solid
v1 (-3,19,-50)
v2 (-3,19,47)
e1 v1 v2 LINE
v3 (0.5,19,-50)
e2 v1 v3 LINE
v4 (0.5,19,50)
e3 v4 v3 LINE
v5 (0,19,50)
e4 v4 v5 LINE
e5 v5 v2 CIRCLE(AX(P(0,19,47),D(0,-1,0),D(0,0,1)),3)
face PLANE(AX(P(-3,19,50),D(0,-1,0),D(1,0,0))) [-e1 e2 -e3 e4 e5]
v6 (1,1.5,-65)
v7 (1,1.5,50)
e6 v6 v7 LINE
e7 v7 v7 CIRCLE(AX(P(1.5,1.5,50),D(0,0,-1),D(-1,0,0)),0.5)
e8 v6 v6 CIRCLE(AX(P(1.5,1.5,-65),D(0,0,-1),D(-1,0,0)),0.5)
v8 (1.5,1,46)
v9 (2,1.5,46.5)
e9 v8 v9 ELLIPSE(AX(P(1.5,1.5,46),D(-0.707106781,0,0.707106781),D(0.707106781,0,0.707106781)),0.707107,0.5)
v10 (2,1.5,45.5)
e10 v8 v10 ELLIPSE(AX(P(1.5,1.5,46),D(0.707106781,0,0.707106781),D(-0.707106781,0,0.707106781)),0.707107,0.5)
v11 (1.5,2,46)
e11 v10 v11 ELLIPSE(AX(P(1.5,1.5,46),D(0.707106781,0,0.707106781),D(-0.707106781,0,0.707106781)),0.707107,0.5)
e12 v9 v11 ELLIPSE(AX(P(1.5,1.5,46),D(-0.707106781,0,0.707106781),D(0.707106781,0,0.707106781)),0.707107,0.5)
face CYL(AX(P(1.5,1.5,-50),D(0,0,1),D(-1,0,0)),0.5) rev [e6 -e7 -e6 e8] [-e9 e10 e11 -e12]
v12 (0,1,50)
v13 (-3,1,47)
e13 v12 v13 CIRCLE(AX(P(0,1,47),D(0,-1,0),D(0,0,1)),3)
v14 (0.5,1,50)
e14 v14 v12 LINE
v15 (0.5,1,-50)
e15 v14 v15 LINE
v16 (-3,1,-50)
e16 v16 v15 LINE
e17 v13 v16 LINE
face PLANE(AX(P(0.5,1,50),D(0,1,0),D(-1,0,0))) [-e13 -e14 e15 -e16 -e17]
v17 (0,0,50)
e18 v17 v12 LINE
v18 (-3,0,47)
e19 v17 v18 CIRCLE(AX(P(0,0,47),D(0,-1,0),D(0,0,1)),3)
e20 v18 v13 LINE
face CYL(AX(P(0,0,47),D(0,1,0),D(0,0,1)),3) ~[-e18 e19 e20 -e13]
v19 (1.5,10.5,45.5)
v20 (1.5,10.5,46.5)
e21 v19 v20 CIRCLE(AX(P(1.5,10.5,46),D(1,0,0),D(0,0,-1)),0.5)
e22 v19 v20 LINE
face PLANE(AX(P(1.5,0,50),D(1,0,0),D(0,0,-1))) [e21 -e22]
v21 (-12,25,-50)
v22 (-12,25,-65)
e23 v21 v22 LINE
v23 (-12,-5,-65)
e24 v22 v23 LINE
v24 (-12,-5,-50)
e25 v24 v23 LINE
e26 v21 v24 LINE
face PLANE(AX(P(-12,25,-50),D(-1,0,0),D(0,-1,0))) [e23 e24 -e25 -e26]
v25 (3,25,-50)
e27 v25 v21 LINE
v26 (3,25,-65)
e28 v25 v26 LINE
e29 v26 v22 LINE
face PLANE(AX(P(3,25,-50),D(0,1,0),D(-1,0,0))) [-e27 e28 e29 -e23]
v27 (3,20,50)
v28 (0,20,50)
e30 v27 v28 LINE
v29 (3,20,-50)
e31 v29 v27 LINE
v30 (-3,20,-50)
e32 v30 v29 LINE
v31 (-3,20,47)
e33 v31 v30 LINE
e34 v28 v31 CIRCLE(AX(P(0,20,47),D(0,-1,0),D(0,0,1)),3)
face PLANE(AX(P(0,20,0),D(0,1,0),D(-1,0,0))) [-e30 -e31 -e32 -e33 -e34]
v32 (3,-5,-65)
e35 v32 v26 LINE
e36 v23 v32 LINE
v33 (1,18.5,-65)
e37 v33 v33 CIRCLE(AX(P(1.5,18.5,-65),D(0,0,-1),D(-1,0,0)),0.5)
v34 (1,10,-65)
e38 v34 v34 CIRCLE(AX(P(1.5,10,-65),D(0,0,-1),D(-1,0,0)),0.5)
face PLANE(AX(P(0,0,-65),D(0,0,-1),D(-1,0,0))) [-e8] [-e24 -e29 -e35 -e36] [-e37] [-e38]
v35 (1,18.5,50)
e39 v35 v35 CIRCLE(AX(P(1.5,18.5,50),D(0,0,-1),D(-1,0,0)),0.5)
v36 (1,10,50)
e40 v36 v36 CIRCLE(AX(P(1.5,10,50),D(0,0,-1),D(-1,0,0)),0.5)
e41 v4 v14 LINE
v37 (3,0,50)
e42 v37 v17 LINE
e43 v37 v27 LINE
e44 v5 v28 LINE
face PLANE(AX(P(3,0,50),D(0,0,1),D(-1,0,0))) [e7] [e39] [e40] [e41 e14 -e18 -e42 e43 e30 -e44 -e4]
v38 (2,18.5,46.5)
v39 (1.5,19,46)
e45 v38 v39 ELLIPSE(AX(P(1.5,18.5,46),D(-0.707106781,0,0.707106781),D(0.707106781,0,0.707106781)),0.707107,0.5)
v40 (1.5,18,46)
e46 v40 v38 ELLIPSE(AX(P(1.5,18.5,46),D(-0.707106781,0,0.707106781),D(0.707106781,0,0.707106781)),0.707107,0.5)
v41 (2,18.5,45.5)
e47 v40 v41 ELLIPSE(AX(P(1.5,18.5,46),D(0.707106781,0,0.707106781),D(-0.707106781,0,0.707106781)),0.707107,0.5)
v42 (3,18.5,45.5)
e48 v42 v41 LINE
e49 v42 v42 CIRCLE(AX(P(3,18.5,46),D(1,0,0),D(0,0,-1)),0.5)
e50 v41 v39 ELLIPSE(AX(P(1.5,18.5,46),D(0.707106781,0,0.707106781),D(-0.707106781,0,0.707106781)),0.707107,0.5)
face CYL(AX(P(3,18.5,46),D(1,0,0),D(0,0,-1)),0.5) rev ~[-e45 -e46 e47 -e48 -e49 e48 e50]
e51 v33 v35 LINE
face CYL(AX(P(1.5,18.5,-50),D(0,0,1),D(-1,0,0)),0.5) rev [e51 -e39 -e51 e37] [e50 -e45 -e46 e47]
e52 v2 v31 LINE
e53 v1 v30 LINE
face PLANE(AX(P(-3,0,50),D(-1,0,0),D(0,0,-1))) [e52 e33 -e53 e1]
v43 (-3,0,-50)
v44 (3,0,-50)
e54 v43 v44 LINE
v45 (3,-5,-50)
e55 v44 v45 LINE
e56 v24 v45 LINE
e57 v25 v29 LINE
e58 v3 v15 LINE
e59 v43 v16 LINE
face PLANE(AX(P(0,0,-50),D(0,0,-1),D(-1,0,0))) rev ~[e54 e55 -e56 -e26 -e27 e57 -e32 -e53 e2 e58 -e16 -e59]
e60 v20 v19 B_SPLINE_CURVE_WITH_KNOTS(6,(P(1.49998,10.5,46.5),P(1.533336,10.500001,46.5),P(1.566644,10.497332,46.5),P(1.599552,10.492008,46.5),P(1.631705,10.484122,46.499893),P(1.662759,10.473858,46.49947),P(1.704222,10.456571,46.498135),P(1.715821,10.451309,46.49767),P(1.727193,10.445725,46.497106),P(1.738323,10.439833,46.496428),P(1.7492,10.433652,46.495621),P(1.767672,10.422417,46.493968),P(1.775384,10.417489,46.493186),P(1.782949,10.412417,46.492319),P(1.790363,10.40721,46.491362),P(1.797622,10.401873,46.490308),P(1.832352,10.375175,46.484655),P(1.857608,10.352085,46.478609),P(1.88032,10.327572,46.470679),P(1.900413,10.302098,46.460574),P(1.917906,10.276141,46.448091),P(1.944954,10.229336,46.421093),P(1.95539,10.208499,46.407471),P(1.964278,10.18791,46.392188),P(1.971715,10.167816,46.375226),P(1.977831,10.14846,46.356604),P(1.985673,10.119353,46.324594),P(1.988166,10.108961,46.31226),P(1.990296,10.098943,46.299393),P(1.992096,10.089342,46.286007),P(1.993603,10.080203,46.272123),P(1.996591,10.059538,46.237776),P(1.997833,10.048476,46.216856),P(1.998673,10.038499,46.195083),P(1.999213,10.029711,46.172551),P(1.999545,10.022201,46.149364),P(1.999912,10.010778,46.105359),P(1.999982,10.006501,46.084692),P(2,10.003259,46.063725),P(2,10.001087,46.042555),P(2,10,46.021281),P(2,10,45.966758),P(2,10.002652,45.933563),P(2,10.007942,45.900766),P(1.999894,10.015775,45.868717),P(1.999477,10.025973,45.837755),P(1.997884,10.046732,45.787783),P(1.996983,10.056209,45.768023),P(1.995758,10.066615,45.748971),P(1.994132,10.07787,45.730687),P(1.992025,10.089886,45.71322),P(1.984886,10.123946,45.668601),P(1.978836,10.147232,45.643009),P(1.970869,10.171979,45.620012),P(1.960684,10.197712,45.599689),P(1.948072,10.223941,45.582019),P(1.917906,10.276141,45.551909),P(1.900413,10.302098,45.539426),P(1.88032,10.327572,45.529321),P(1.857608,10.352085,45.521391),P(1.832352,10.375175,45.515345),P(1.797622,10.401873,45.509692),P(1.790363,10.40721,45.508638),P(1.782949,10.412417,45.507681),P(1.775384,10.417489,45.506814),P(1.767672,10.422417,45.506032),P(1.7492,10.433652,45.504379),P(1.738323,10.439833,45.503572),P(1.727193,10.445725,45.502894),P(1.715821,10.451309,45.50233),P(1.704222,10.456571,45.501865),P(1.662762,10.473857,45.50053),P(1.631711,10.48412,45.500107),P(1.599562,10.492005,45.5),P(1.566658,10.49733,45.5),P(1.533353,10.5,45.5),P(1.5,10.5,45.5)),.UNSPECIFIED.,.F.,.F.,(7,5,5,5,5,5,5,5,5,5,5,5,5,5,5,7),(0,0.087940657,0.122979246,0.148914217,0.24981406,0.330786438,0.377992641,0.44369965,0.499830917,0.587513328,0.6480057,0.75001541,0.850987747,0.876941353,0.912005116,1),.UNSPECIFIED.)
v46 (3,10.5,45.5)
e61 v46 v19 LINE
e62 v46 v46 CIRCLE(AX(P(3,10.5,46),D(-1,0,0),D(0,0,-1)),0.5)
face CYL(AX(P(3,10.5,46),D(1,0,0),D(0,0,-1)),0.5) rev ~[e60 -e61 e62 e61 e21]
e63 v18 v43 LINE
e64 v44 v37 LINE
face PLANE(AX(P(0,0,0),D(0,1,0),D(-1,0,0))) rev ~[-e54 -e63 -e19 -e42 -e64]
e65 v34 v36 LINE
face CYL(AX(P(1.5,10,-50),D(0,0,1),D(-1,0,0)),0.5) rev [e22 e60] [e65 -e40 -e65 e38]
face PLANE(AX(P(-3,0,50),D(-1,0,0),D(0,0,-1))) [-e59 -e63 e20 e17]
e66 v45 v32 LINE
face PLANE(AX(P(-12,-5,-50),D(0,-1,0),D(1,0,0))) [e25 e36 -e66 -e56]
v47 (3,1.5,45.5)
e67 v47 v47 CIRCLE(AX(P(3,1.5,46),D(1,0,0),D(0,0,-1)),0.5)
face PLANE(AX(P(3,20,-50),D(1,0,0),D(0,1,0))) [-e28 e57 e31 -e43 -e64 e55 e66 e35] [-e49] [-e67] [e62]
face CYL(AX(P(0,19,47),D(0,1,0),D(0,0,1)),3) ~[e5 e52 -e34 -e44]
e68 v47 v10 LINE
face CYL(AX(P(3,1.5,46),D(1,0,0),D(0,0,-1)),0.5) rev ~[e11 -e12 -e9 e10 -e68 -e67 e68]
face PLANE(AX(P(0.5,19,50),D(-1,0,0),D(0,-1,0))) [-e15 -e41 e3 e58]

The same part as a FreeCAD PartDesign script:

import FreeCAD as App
import Part
import Sketcher
from FreeCAD import Vector
Q = App.Units.Quantity


def edges_at(feature, points):
    """Names of the edges that pass closest to the given points."""
    edges = feature.Shape.Edges
    near = lambda p: min(range(len(edges)), key=lambda i: edges[i].distToShape(Part.Vertex(*p))[0])
    return sorted({f"Edge{near(p) + 1}" for p in points})


def add_polygon(sketch, points):
    """Adds a closed chain of lines whose ends are joined by coincident constraints."""
    first, n = sketch.GeometryCount, len(points)
    for a, b in zip(points, points[1:] + points[:1]):
        sketch.addGeometry(Part.LineSegment(App.Vector(*a, 0), App.Vector(*b, 0)), False)
    for i in range(n):
        sketch.addConstraint(Sketcher.Constraint("Coincident", first + i, 2, first + (i + 1) % n, 1))

doc = App.newDocument("Part")
body = doc.addObject("PartDesign::Body", "Body")

# Sketch on XZ plane
sketch1 = doc.addObject("Sketcher::SketchObject", "Sketch")
body.addObject(sketch1)
sketch1.AttachmentSupport = (doc.XZ_Plane, [""])
sketch1.MapMode = "FlatFace"
add_polygon(sketch1, [(-3, 50), (3, 50), (3, -50), (-3, -50)])  # lines 0-3
sketch1.addConstraint([
    Sketcher.Constraint("Horizontal", 0),
    Sketcher.Constraint("Vertical", 1),
    Sketcher.Constraint("Horizontal", 2),
    Sketcher.Constraint("Vertical", 3),
    Sketcher.Constraint("Symmetric", 0, 2, 2, 2, -1, 1),
    Sketcher.Constraint("DistanceX", 0, 1, 0, 2, Q("6 mm")),
    Sketcher.Constraint("DistanceY", 1, 2, 1, 1, Q("100 mm")),
])
pad1 = doc.addObject("PartDesign::Pad", "Pad")
body.addObject(pad1)
pad1.Profile = sketch1
pad1.Length = 20
pad1.Reversed = True

# Sketch on XY plane
sketch2 = doc.addObject("Sketcher::SketchObject", "Sketch001")
body.addObject(sketch2)
sketch2.AttachmentSupport = (doc.XY_Plane, [""])
sketch2.MapMode = "FlatFace"
sketch2.AttachmentOffset = App.Placement(Vector(0, 0, -50), App.Rotation())
add_polygon(sketch2, [(-12, 25), (3, 25), (3, -5), (-12, -5)])  # lines 0-3
sketch2.addConstraint([
    Sketcher.Constraint("Horizontal", 0),
    Sketcher.Constraint("Vertical", 1),
    Sketcher.Constraint("Horizontal", 2),
    Sketcher.Constraint("Vertical", 3),
    Sketcher.Constraint("DistanceX", 0, 1, 0, 2, Q("15 mm")),
    Sketcher.Constraint("DistanceY", 1, 2, 1, 1, Q("30 mm")),
    Sketcher.Constraint("DistanceY", 1, 2, -1, 1, Q("5 mm")),
    Sketcher.Constraint("DistanceX", -1, 1, 0, 2, Q("3 mm")),
])
pad2 = doc.addObject("PartDesign::Pad", "Pad001")
body.addObject(pad2)
pad2.Profile = sketch2
pad2.Length = 15
pad2.Reversed = True

# Sketch on XY plane
sketch3 = doc.addObject("Sketcher::SketchObject", "Sketch002")
body.addObject(sketch3)
sketch3.AttachmentSupport = (doc.XY_Plane, [""])
sketch3.MapMode = "FlatFace"
sketch3.AttachmentOffset = App.Placement(Vector(0, 0, -50), App.Rotation())
sketch3.addGeometry([
    Part.Circle(Vector(1.5, 18.5, 0), Vector(0, 0, 1), 0.5),
    Part.Circle(Vector(1.5, 10, 0), Vector(0, 0, 1), 0.5),
    Part.Circle(Vector(1.5, 1.5, 0), Vector(0, 0, 1), 0.5),
], False)
sketch3.addConstraint([
    Sketcher.Constraint("Equal", 0, 1),
    Sketcher.Constraint("Equal", 1, 2),
    Sketcher.Constraint("Vertical", 0, 3, 1, 3),
    Sketcher.Constraint("Vertical", 1, 3, 2, 3),
    Sketcher.Constraint("Diameter", 0, Q("1 mm")),
    Sketcher.Constraint("DistanceY", -1, 1, 1, 3, Q("10 mm")),
    Sketcher.Constraint("DistanceX", -1, 1, 0, 3, Q("1.5 mm")),
    Sketcher.Constraint("DistanceY", -1, 1, 2, 3, Q("1.5 mm")),
    Sketcher.Constraint("DistanceY", 2, 3, 0, 3, Q("17 mm")),
])
pocket1 = doc.addObject("PartDesign::Pocket", "Pocket")
body.addObject(pocket1)
pocket1.Profile = sketch3
pocket1.Type = "ThroughAll"
pocket1.Midplane = True

# Sketch on XY plane
sketch4 = doc.addObject("Sketcher::SketchObject", "Sketch003")
body.addObject(sketch4)
sketch4.AttachmentSupport = (doc.XY_Plane, [""])
sketch4.MapMode = "FlatFace"
sketch4.AttachmentOffset = App.Placement(Vector(0, 0, 50), App.Rotation())
add_polygon(sketch4, [(0, 1), (0, 19), (-6, 19), (-6, 1)])  # lines 0-3
sketch4.addConstraint([
    Sketcher.Constraint("Vertical", 0),
    Sketcher.Constraint("Horizontal", 1),
    Sketcher.Constraint("Vertical", 2),
    Sketcher.Constraint("Horizontal", 3),
    Sketcher.Constraint("DistanceX", 1, 2, 1, 1, Q("7 mm")),
    Sketcher.Constraint("DistanceY", 0, 1, 0, 2, Q("18 mm")),
    Sketcher.Constraint("DistanceY", -1, 1, 0, 2, Q("19 mm")),
    Sketcher.Constraint("DistanceX", -1, 1, 0, 2, Q("0.5 mm")),
])
pocket2 = doc.addObject("PartDesign::Pocket", "Pocket001")
body.addObject(pocket2)
pocket2.Profile = sketch4
pocket2.Length = 100

# Sketch on YZ plane
sketch5 = doc.addObject("Sketcher::SketchObject", "Sketch004")
body.addObject(sketch5)
sketch5.AttachmentSupport = (doc.YZ_Plane, [""])
sketch5.MapMode = "FlatFace"
sketch5.AttachmentOffset = App.Placement(Vector(0, 0, 3), App.Rotation())
sketch5.addGeometry([
    Part.Circle(Vector(18.5, 46, 0), Vector(0, 0, 1), 0.5),
    Part.Circle(Vector(10.5, 46, 0), Vector(0, 0, 1), 0.5),
    Part.Circle(Vector(1.5, 46, 0), Vector(0, 0, 1), 0.5),
], False)
sketch5.addConstraint([
    Sketcher.Constraint("Equal", 0, 1),
    Sketcher.Constraint("Equal", 1, 2),
    Sketcher.Constraint("Horizontal", 0, 3, 1, 3),
    Sketcher.Constraint("Horizontal", 1, 3, 2, 3),
    Sketcher.Constraint("Diameter", 0, Q("1 mm")),
    Sketcher.Constraint("DistanceX", -1, 1, 2, 3, Q("1.5 mm")),
    Sketcher.Constraint("DistanceY", -1, 1, 0, 3, Q("46 mm")),
    Sketcher.Constraint("DistanceX", 1, 3, 0, 3, Q("8 mm")),
    Sketcher.Constraint("DistanceX", 2, 3, 1, 3, Q("9 mm")),
])
pocket3 = doc.addObject("PartDesign::Pocket", "Pocket002")
body.addObject(pocket3)
pocket3.Profile = sketch5
pocket3.Length = 1.5
doc.recompute()

fillet = doc.addObject("PartDesign::Fillet", "Fillet")
body.addObject(fillet)
fillet.Base = (pocket3, edges_at(pocket3, [(-3, 19.5, 50), (-3, 0.5, 50)]))
fillet.Radius = 3

doc.recompute()
